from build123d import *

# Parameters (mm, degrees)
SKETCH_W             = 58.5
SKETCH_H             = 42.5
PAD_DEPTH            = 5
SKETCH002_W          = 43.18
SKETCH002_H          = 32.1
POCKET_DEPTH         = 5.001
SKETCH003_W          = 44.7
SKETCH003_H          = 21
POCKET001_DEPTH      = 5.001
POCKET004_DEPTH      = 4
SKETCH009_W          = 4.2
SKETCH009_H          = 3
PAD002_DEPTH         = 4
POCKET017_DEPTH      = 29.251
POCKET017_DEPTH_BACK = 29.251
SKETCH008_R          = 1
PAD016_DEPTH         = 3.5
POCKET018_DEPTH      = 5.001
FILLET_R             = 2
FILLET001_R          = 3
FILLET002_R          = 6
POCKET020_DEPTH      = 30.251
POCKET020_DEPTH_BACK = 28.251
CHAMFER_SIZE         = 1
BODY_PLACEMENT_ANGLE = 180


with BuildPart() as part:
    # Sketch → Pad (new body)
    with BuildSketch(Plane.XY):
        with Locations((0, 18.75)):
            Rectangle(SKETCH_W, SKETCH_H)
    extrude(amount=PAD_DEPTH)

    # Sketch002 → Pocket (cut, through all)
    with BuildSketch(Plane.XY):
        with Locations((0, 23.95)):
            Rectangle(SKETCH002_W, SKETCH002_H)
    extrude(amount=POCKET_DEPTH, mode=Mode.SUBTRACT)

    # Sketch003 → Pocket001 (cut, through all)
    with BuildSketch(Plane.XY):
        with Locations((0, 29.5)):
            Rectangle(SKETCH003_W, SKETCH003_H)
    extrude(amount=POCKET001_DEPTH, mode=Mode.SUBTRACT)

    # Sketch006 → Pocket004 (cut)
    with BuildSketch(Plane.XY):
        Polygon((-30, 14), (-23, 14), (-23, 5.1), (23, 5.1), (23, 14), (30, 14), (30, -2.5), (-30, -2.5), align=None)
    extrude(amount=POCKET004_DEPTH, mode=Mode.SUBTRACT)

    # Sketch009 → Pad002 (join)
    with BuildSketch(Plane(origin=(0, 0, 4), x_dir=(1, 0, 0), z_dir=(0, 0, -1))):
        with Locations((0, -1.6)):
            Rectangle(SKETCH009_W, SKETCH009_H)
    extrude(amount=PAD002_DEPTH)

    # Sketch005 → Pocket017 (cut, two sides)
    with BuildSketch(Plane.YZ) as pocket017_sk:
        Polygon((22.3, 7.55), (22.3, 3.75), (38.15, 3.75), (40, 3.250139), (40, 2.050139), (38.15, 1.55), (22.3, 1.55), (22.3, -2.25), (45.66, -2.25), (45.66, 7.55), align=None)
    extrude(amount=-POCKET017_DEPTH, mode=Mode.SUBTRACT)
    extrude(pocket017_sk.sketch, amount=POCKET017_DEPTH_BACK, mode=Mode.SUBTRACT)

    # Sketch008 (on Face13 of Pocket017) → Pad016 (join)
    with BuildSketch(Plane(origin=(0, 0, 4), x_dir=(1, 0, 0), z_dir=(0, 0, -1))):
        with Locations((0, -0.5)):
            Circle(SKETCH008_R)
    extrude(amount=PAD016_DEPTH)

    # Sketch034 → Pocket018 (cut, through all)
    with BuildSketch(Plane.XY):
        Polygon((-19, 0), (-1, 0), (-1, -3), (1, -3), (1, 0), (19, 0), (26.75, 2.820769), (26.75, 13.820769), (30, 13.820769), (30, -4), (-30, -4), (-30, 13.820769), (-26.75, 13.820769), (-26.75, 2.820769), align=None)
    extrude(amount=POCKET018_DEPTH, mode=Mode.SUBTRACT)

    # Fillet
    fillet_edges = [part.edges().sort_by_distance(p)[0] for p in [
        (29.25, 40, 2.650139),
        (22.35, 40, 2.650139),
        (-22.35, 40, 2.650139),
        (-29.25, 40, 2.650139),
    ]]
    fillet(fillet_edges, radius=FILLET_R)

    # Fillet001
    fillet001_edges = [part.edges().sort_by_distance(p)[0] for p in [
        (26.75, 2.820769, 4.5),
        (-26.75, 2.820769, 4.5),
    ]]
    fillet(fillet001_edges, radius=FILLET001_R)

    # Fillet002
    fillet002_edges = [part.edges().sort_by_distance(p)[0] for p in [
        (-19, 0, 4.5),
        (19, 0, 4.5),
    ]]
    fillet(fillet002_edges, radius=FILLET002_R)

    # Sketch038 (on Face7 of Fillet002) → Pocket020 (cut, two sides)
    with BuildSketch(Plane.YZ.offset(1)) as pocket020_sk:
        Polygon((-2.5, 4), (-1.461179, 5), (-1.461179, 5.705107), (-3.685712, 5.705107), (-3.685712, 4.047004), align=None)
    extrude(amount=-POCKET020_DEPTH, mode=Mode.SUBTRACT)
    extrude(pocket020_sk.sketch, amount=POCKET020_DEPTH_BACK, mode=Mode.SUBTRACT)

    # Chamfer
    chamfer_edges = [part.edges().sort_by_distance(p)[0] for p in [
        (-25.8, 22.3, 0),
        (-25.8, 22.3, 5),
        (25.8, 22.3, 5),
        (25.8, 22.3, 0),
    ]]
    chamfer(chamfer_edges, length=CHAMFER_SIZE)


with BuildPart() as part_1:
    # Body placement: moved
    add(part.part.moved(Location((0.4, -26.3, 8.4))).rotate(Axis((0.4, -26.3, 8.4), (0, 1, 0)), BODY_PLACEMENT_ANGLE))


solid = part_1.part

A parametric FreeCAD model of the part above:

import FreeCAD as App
import Part
import Sketcher
from FreeCAD import Vector
Q = App.Units.Quantity


def edges_at(feature, points):
    """Names of the edges that pass closest to the given points."""
    edges = feature.Shape.Edges
    near = lambda p: min(range(len(edges)), key=lambda i: edges[i].distToShape(Part.Vertex(*p))[0])
    return sorted({f"Edge{near(p) + 1}" for p in points})


def add_polygon(sketch, points):
    """Adds a closed chain of lines whose ends are joined by coincident constraints."""
    first, n = sketch.GeometryCount, len(points)
    for a, b in zip(points, points[1:] + points[:1]):
        sketch.addGeometry(Part.LineSegment(App.Vector(*a, 0), App.Vector(*b, 0)), False)
    for i in range(n):
        sketch.addConstraint(Sketcher.Constraint("Coincident", first + i, 2, first + (i + 1) % n, 1))

doc = App.newDocument("Part")
params = doc.addObject("Spreadsheet::Sheet", "Params")
for row, (alias, value) in enumerate([
    ("sketch1_width", "58.5 mm"),
    ("sketch1_height", "42.5 mm"),
    ("pad1_length", "5 mm"),
    ("sketch2_height", "32.1 mm"),
    ("sketch2_width", "43.18 mm"),
    ("sketch3_height", "21 mm"),
    ("sketch3_width", "44.7 mm"),
    ("sketch4_width", "7 mm"),
    ("sketch4_width2", "60 mm"),
    ("sketch4_height", "16.5 mm"),
    ("sketch4_height2", "8.9 mm"),
    ("pocket3_length", "4 mm"),
    ("sketch5_height", "3 mm"),
    ("sketch5_width", "4.2 mm"),
    ("pad2_length", "4 mm"),
    ("sketch6_height", "3.8 mm"),
    ("sketch6_height2", "1.2 mm"),
    ("sketch6_height3", "9.8 mm"),
    ("sketch6_width", "15.85 mm"),
    ("sketch6_width2", "23.36 mm"),
    ("sketch7_diameter", "2 mm"),
    ("pad3_length", "3.5 mm"),
    ("sketch8_width", "18 mm"),
    ("sketch8_width2", "60 mm"),
    ("sketch8_width3", "2 mm"),
    ("sketch8_height", "11 mm"),
    ("sketch8_height2", "3 mm"),
    ("fillet_radius", "2 mm"),
    ("fillet2_radius", "3 mm"),
    ("fillet3_radius", "6 mm"),
    ("chamfer_size", "1 mm"),
], start=1):
    params.set(f"A{row}", alias)
    params.set(f"B{row}", "=" + value)
    params.setAlias(f"B{row}", alias)

body = doc.addObject("PartDesign::Body", "Body")

sketch1 = body.newObject("Sketcher::SketchObject", "Sketch")
sketch1.AttachmentSupport = (doc.getObject("XY_Plane"), [""])
sketch1.MapMode = "FlatFace"
add_polygon(sketch1, [(-29, 40), (-29, -2), (29, -2), (29, 40)])
sketch1.addConstraint([
    Sketcher.Constraint("Vertical", 0),
    Sketcher.Constraint("Horizontal", 1),
    Sketcher.Constraint("Vertical", 2),
    Sketcher.Constraint("Horizontal", 3),
    Sketcher.Constraint("DistanceX", 1, 1, 1, 2, Q("58.5 mm")),
    Sketcher.Constraint("DistanceY", 0, 2, 0, 1, Q("42.5 mm")),
    Sketcher.Constraint("DistanceY", -1, 1, 2, 2, Q("40 mm")),
    Sketcher.Constraint("DistanceX", 0, 2, -1, 1, Q("29.25 mm")),
])
sketch1.setExpression("Constraints[8]", "Params.sketch1_width")
sketch1.setExpression("Constraints[9]", "Params.sketch1_height")
pad1 = body.newObject("PartDesign::Pad", "Pad")
pad1.Profile = sketch1
pad1.setExpression("Length", "Params.pad1_length")

sketch2 = body.newObject("Sketcher::SketchObject", "Sketch001")
sketch2.AttachmentSupport = (doc.getObject("XY_Plane"), [""])
sketch2.MapMode = "FlatFace"
add_polygon(sketch2, [(-22, 40), (-22, 8), (22, 8), (22, 40)])
sketch2.addConstraint([
    Sketcher.Constraint("Vertical", 0),
    Sketcher.Constraint("Horizontal", 1),
    Sketcher.Constraint("Vertical", 2),
    Sketcher.Constraint("Horizontal", 3),
    Sketcher.Constraint("DistanceY", 0, 2, 0, 1, Q("32.1 mm")),
    Sketcher.Constraint("DistanceY", -1, 1, 2, 2, Q("40 mm")),
    Sketcher.Constraint("DistanceX", 1, 1, 1, 2, Q("43.18 mm")),
    Sketcher.Constraint("DistanceX", 0, 2, -1, 1, Q("21.59 mm")),
])
sketch2.setExpression("Constraints[8]", "Params.sketch2_height")
sketch2.setExpression("Constraints[10]", "Params.sketch2_width")
pocket1 = body.newObject("PartDesign::Pocket", "Pocket")
pocket1.Profile = sketch2
pocket1.Type = "ThroughAll"
pocket1.Reversed = True

sketch3 = body.newObject("Sketcher::SketchObject", "Sketch002")
sketch3.AttachmentSupport = (doc.getObject("XY_Plane"), [""])
sketch3.MapMode = "FlatFace"
add_polygon(sketch3, [(-22, 40), (-22, 19), (22, 19), (22, 40)])
sketch3.addConstraint([
    Sketcher.Constraint("Vertical", 0),
    Sketcher.Constraint("Horizontal", 1),
    Sketcher.Constraint("Vertical", 2),
    Sketcher.Constraint("Horizontal", 3),
    Sketcher.Constraint("DistanceY", 0, 2, 0, 1, Q("21 mm")),
    Sketcher.Constraint("DistanceX", 1, 1, 1, 2, Q("44.7 mm")),
    Sketcher.Constraint("DistanceY", -1, 1, 0, 2, Q("19 mm")),
    Sketcher.Constraint("DistanceX", 0, 2, -1, 1, Q("22.35 mm")),
])
sketch3.setExpression("Constraints[8]", "Params.sketch3_height")
sketch3.setExpression("Constraints[9]", "Params.sketch3_width")
pocket2 = body.newObject("PartDesign::Pocket", "Pocket001")
pocket2.Profile = sketch3
pocket2.Type = "ThroughAll"
pocket2.Reversed = True

sketch4 = body.newObject("Sketcher::SketchObject", "Sketch003")
sketch4.AttachmentSupport = (doc.getObject("XY_Plane"), [""])
sketch4.MapMode = "FlatFace"
add_polygon(sketch4, [(-23, 14), (-30, 14), (-30, -2), (30, -2), (30, 14), (23, 14), (23, 5), (-23, 5)])
sketch4.addConstraint([
    Sketcher.Constraint("Horizontal", 0),
    Sketcher.Constraint("Vertical", 1),
    Sketcher.Constraint("Horizontal", 2),
    Sketcher.Constraint("Vertical", 3),
    Sketcher.Constraint("Horizontal", 4),
    Sketcher.Constraint("Vertical", 5),
    Sketcher.Constraint("Horizontal", 6),
    Sketcher.Constraint("Vertical", 7),
    Sketcher.Constraint("Symmetric", 0, 2, 3, 2, -2),
    Sketcher.Constraint("Equal", 0, 4),
    Sketcher.Constraint("DistanceX", 0, 2, 0, 1, Q("7 mm")),
    Sketcher.Constraint("DistanceX", 2, 1, 2, 2, Q("60 mm")),
    Sketcher.Constraint("DistanceY", 1, 2, 1, 1, Q("16.5 mm")),
    Sketcher.Constraint("DistanceY", 5, 2, 5, 1, Q("8.9 mm")),
    Sketcher.Constraint("DistanceY", -1, 1, 0, 2, Q("14 mm")),
])
sketch4.setExpression("Constraints[18]", "Params.sketch4_width")
sketch4.setExpression("Constraints[19]", "Params.sketch4_width2")
sketch4.setExpression("Constraints[20]", "Params.sketch4_height")
sketch4.setExpression("Constraints[21]", "Params.sketch4_height2")
pocket3 = body.newObject("PartDesign::Pocket", "Pocket002")
pocket3.Profile = sketch4
pocket3.setExpression("Length", "Params.pocket3_length")
pocket3.Reversed = True

sketch5 = body.newObject("Sketcher::SketchObject", "Sketch004")
sketch5.AttachmentSupport = (doc.getObject("XY_Plane"), [""])
sketch5.MapMode = "FlatFace"
sketch5.AttachmentOffset = App.Placement(Vector(0, 0, 4), App.Rotation())
add_polygon(sketch5, [(-2.1, 0.1), (-2.1, 3.1), (2.1, 3.1), (2.1, 0.1)])
sketch5.addConstraint([
    Sketcher.Constraint("Vertical", 0),
    Sketcher.Constraint("Horizontal", 1),
    Sketcher.Constraint("Vertical", 2),
    Sketcher.Constraint("Horizontal", 3),
    Sketcher.Constraint("DistanceY", 0, 1, 0, 2, Q("3 mm")),
    Sketcher.Constraint("DistanceX", 1, 1, 1, 2, Q("4.2 mm")),
    Sketcher.Constraint("DistanceX", 0, 2, -1, 1, Q("2.1 mm")),
    Sketcher.Constraint("DistanceY", -1, 1, 0, 2, Q("3.1 mm")),
])
sketch5.setExpression("Constraints[8]", "Params.sketch5_height")
sketch5.setExpression("Constraints[9]", "Params.sketch5_width")
pad2 = body.newObject("PartDesign::Pad", "Pad001")
pad2.Profile = sketch5
pad2.setExpression("Length", "Params.pad2_length")
pad2.Reversed = True

sketch6 = body.newObject("Sketcher::SketchObject", "Sketch005")
sketch6.AttachmentSupport = (doc.getObject("YZ_Plane"), [""])
sketch6.MapMode = "FlatFace"
add_polygon(sketch6, [(22.3, 7.5), (22.3, 3.8), (38.1, 3.8), (40, 3.3), (40, 2.1), (38.1, 1.6), (22.3, 1.6), (22.3, -2.2), (45.7, -2.2), (45.7, 7.5)])
sketch6.addConstraint([
    Sketcher.Constraint("Vertical", 0),
    Sketcher.Constraint("Horizontal", 1),
    Sketcher.Constraint("Vertical", 3),
    Sketcher.Constraint("Horizontal", 5),
    Sketcher.Constraint("Vertical", 6),
    Sketcher.Constraint("Horizontal", 7),
    Sketcher.Constraint("Vertical", 8),
    Sketcher.Constraint("Horizontal", 9),
    Sketcher.Constraint("Vertical", 1, 2, 4, 2),
    Sketcher.Constraint("Vertical", 0, 2, 5, 2),
    Sketcher.Constraint("Equal", 0, 6),
    Sketcher.Constraint("DistanceY", 0, 2, 0, 1, Q("3.8 mm")),
    Sketcher.Constraint("DistanceY", 3, 2, 3, 1, Q("1.2 mm")),
    Sketcher.Constraint("DistanceY", 8, 1, 8, 2, Q("9.8 mm")),
    Sketcher.Constraint("DistanceX", -1, 1, 2, 2, Q("40 mm")),
    Sketcher.Constraint("DistanceX", 1, 1, 1, 2, Q("15.85 mm")),
    Sketcher.Constraint("DistanceX", 7, 1, 7, 2, Q("23.36 mm")),
    Sketcher.Constraint("DistanceX", -1, 1, 0, 2, Q("22.3 mm")),
    Sketcher.Constraint("Angle", 2, Q("-15.119995 deg")),
    Sketcher.Constraint("DistanceY", -1, 1, 0, 2, Q("3.75 mm")),
])
sketch6.setExpression("Constraints[21]", "Params.sketch6_height")
sketch6.setExpression("Constraints[22]", "Params.sketch6_height2")
sketch6.setExpression("Constraints[23]", "Params.sketch6_height3")
sketch6.setExpression("Constraints[25]", "Params.sketch6_width")
sketch6.setExpression("Constraints[26]", "Params.sketch6_width2")
pocket4 = body.newObject("PartDesign::Pocket", "Pocket003")
pocket4.Profile = sketch6
pocket4.Type = "ThroughAll"
pocket4.Midplane = True

sketch7 = body.newObject("Sketcher::SketchObject", "Sketch006")
sketch7.AttachmentSupport = (doc.getObject("XY_Plane"), [""])
sketch7.MapMode = "FlatFace"
sketch7.AttachmentOffset = App.Placement(Vector(0, 0, 4), App.Rotation())
sketch7.addGeometry(Part.Circle(Vector(0, 0.5, 0), Vector(0, 0, 1), 1), False)
sketch7.addConstraint([
    Sketcher.Constraint("PointOnObject", 0, 3, -2),
    Sketcher.Constraint("Diameter", 0, Q("2 mm")),
    Sketcher.Constraint("DistanceY", -1, 1, 0, 3, Q("0.5 mm")),
])
sketch7.setExpression("Constraints[1]", "Params.sketch7_diameter")
pad3 = body.newObject("PartDesign::Pad", "Pad002")
pad3.Profile = sketch7
pad3.setExpression("Length", "Params.pad3_length")
pad3.Reversed = True

sketch8 = body.newObject("Sketcher::SketchObject", "Sketch007")
sketch8.AttachmentSupport = (doc.getObject("XY_Plane"), [""])
sketch8.MapMode = "FlatFace"
add_polygon(sketch8, [(-1, 0), (-19, 0), (-26.8, 2.8), (-26.8, 13.8), (-30, 13.8), (-30, -4), (30, -4), (30, 13.8), (26.8, 13.8), (26.8, 2.8), (19, 0), (1, 0), (1, -3), (-1, -3)])
sketch8.addConstraint([
    Sketcher.Constraint("Horizontal", 0),
    Sketcher.Constraint("Vertical", 2),
    Sketcher.Constraint("Horizontal", 3),
    Sketcher.Constraint("Vertical", 4),
    Sketcher.Constraint("Horizontal", 5),
    Sketcher.Constraint("Vertical", 6),
    Sketcher.Constraint("Horizontal", 7),
    Sketcher.Constraint("Vertical", 8),
    Sketcher.Constraint("Horizontal", 10),
    Sketcher.Constraint("Vertical", 11),
    Sketcher.Constraint("Horizontal", 12),
    Sketcher.Constraint("Vertical", 13),
    Sketcher.Constraint("Symmetric", 0, 2, 9, 2, -1, 1),
    Sketcher.Constraint("Symmetric", 3, 2, 6, 2, -2),
    Sketcher.Constraint("Symmetric", 1, 2, 8, 2, -2),
    Sketcher.Constraint("Symmetric", 10, 2, 13, 2, -2),
    Sketcher.Constraint("DistanceX", 0, 2, 0, 1, Q("18 mm")),
    Sketcher.Constraint("DistanceX", 5, 1, 5, 2, Q("60 mm")),
    Sketcher.Constraint("DistanceX", 12, 2, 12, 1, Q("2 mm")),
    Sketcher.Constraint("DistanceY", 2, 1, 2, 2, Q("11 mm")),
    Sketcher.Constraint("DistanceY", 11, 2, 11, 1, Q("3 mm")),
    Sketcher.Constraint("Angle", 1, Q("160.000002 deg")),
    Sketcher.Constraint("DistanceY", 4, 2, -1, 1, Q("4 mm")),
    Sketcher.Constraint("DistanceX", 3, 2, 3, 1, Q("3.25 mm")),
])
sketch8.setExpression("Constraints[30]", "Params.sketch8_width")
sketch8.setExpression("Constraints[31]", "Params.sketch8_width2")
sketch8.setExpression("Constraints[32]", "Params.sketch8_width3")
sketch8.setExpression("Constraints[33]", "Params.sketch8_height")
sketch8.setExpression("Constraints[34]", "Params.sketch8_height2")
pocket5 = body.newObject("PartDesign::Pocket", "Pocket004")
pocket5.Profile = sketch8
pocket5.Type = "ThroughAll"
pocket5.Reversed = True
doc.recompute()

fillet = body.newObject("PartDesign::Fillet", "Fillet")
fillet.Base = (pocket5, edges_at(pocket5, [
    (29.25, 40, 2.65),
    (22.35, 40, 2.65),
    (-22.35, 40, 2.65),
    (-29.25, 40, 2.65),
]))
fillet.setExpression("Radius", "Params.fillet_radius")
doc.recompute()

fillet2 = body.newObject("PartDesign::Fillet", "Fillet001")
fillet2.Base = (fillet, edges_at(fillet, [(26.75, 2.821, 4.5), (-26.75, 2.821, 4.5)]))
fillet2.setExpression("Radius", "Params.fillet2_radius")
doc.recompute()

fillet3 = body.newObject("PartDesign::Fillet", "Fillet002")
fillet3.Base = (fillet2, edges_at(fillet2, [(-19, 0, 4.5), (19, 0, 4.5)]))
fillet3.setExpression("Radius", "Params.fillet3_radius")

sketch9 = body.newObject("Sketcher::SketchObject", "Sketch008")
sketch9.AttachmentSupport = (doc.getObject("YZ_Plane"), [""])
sketch9.MapMode = "FlatFace"
sketch9.AttachmentOffset = App.Placement(Vector(0, 0, 1), App.Rotation())
add_polygon(sketch9, [(-2.5, 4), (-1.5, 5), (-1.5, 5.7), (-3.7, 5.7), (-3.7, 4)])
sketch9.addConstraint([
    Sketcher.Constraint("Vertical", 1),
    Sketcher.Constraint("Horizontal", 2),
    Sketcher.Constraint("Vertical", 3),
    Sketcher.Constraint("DistanceY", -1, 1, 0, 2, Q("5 mm")),
    Sketcher.Constraint("DistanceY", -1, 1, 4, 2, Q("4 mm")),
    Sketcher.Constraint("DistanceX", 4, 2, -1, 1, Q("2.5 mm")),
    Sketcher.Constraint("DistanceX", 2, 2, 2, 1, Q("2.224533 mm")),
    Sketcher.Constraint("DistanceY", 1, 1, 1, 2, Q("0.705107 mm")),
    Sketcher.Constraint("DistanceY", 3, 2, 3, 1, Q("1.658103 mm")),
    Sketcher.Constraint("DistanceX", 0, 2, -1, 1, Q("1.461179 mm")),
])
pocket6 = body.newObject("PartDesign::Pocket", "Pocket005")
pocket6.Profile = sketch9
pocket6.Type = "ThroughAll"
pocket6.Midplane = True
doc.recompute()

chamfer = body.newObject("PartDesign::Chamfer", "Chamfer")
chamfer.Base = (pocket6, edges_at(pocket6, [
    (-25.8, 22.3, 0),
    (-25.8, 22.3, 5),
    (25.8, 22.3, 5),
    (25.8, 22.3, 0),
]))
chamfer.setExpression("Size", "Params.chamfer_size")
body2 = doc.addObject("PartDesign::Body", "Body001")
doc.recompute()

body.Placement = App.Placement(Vector(0.4, -26.3, 8.4), App.Rotation(Vector(0, 1, 0), 180))
boolean = body2.newObject("PartDesign::Boolean", "Boolean")
boolean.Type = "Fuse"
boolean.addObjects([body])

doc.recompute()
